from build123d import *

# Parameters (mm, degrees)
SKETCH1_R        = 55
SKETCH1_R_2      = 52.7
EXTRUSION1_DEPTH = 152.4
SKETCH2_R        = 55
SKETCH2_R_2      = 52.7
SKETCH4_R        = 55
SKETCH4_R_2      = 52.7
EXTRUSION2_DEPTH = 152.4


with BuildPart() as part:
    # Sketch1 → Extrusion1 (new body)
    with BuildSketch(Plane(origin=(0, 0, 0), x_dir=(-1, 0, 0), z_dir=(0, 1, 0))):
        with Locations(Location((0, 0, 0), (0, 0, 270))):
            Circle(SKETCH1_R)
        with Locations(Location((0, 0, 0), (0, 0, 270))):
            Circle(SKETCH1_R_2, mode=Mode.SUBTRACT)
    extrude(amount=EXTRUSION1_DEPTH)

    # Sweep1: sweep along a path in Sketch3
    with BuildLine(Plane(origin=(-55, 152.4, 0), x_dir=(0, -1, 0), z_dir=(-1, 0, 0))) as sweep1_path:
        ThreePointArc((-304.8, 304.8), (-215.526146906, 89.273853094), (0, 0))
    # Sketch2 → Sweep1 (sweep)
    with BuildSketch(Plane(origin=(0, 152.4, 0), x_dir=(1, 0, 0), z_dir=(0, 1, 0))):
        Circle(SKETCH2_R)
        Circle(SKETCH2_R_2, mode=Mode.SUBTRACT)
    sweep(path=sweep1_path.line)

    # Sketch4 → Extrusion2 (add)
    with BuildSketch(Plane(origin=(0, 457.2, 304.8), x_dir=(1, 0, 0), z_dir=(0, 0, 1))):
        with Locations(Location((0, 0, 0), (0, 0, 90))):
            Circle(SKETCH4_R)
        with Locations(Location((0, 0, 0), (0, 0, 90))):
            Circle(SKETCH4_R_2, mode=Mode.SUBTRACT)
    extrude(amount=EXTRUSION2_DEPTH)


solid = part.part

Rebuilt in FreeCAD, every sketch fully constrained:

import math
import FreeCAD as App
import Part
import Sketcher

doc = App.newDocument("Part")
body = doc.addObject("PartDesign::Body", "Body")

# Sketch on XZ plane
sketch1 = doc.addObject("Sketcher::SketchObject", "Sketch")
body.addObject(sketch1)
sketch1.AttachmentSupport = (doc.XZ_Plane, [""])
sketch1.MapMode = "FlatFace"
sketch1.addGeometry([
    Part.Circle(App.Vector(0, 0, 0), App.Vector(0, 0, 1), 55),
    Part.Circle(App.Vector(0, 0, 0), App.Vector(0, 0, 1), 53),
], False)
sketch1.addConstraint([
    Sketcher.Constraint("Coincident", 0, 3, -1, 1),
    Sketcher.Constraint("Coincident", 1, 3, -1, 1),
    Sketcher.Constraint("Diameter", 0, 110.0),
    Sketcher.Constraint("Diameter", 1, 105.4),
])
pad1 = doc.addObject("PartDesign::Pad", "Pad")
body.addObject(pad1)
pad1.Profile = sketch1
pad1.Length = 152.4
pad1.Reversed = True

# Sketch on XZ plane
sketch2 = doc.addObject("Sketcher::SketchObject", "Sketch001")
body.addObject(sketch2)
sketch2.AttachmentSupport = (doc.XZ_Plane, [""])
sketch2.MapMode = "FlatFace"
sketch2.AttachmentOffset = App.Placement(App.Vector(0, 0, -152.4), App.Rotation())
sketch2.addGeometry([
    Part.Circle(App.Vector(0, 0, 0), App.Vector(0, 0, 1), 55),
    Part.Circle(App.Vector(0, 0, 0), App.Vector(0, 0, 1), 53),
], False)
sketch2.addConstraint([
    Sketcher.Constraint("Coincident", 0, 3, -1, 1),
    Sketcher.Constraint("Coincident", 1, 3, -1, 1),
    Sketcher.Constraint("Diameter", 0, 110.0),
    Sketcher.Constraint("Diameter", 1, 105.4),
])

# Sketch on YZ plane
sketch3 = doc.addObject("Sketcher::SketchObject", "Sketch002")
body.addObject(sketch3)
sketch3.AttachmentSupport = (doc.YZ_Plane, [""])
sketch3.MapMode = "FlatFace"
sketch3.AttachmentOffset = App.Placement(App.Vector(0, 0, -55), App.Rotation())
sketch3.addGeometry(Part.ArcOfCircle(Part.Circle(App.Vector(152, 305, 0), App.Vector(0, 0, 1), 305), math.radians(-90), math.radians(0)), False)
sketch3.addConstraint([
    Sketcher.Constraint("PointOnObject", 0, 1, -1),
    Sketcher.Constraint("Radius", 0, 304.8),
    Sketcher.Constraint("DistanceX", -1, 1, 0, 3, 152.4),
    Sketcher.Constraint("DistanceX", -1, 1, 0, 1, 152.4),
    Sketcher.Constraint("DistanceY", -1, 1, 0, 2, 304.8),
])
doc.recompute()

additivepipe = doc.addObject("PartDesign::AdditivePipe", "AdditivePipe")
body.addObject(additivepipe)
additivepipe.Profile = sketch2
additivepipe.Spine = (sketch3, ["Edge1"])

# Sketch on XY plane
sketch4 = doc.addObject("Sketcher::SketchObject", "Sketch003")
body.addObject(sketch4)
sketch4.AttachmentSupport = (doc.XY_Plane, [""])
sketch4.MapMode = "FlatFace"
sketch4.AttachmentOffset = App.Placement(App.Vector(0, 0, 304.8), App.Rotation())
sketch4.addGeometry([
    Part.Circle(App.Vector(0, 457, 0), App.Vector(0, 0, 1), 55),
    Part.Circle(App.Vector(0, 457, 0), App.Vector(0, 0, 1), 53),
], False)
sketch4.addConstraint([
    Sketcher.Constraint("Coincident", 1, 3, 0, 3),
    Sketcher.Constraint("PointOnObject", 0, 3, -2),
    Sketcher.Constraint("Diameter", 0, 110.0),
    Sketcher.Constraint("Diameter", 1, 105.4),
    Sketcher.Constraint("DistanceY", -1, 1, 0, 3, 457.2),
])
pad2 = doc.addObject("PartDesign::Pad", "Pad001")
body.addObject(pad2)
pad2.Profile = sketch4
pad2.Length = 152.4

doc.recompute()
